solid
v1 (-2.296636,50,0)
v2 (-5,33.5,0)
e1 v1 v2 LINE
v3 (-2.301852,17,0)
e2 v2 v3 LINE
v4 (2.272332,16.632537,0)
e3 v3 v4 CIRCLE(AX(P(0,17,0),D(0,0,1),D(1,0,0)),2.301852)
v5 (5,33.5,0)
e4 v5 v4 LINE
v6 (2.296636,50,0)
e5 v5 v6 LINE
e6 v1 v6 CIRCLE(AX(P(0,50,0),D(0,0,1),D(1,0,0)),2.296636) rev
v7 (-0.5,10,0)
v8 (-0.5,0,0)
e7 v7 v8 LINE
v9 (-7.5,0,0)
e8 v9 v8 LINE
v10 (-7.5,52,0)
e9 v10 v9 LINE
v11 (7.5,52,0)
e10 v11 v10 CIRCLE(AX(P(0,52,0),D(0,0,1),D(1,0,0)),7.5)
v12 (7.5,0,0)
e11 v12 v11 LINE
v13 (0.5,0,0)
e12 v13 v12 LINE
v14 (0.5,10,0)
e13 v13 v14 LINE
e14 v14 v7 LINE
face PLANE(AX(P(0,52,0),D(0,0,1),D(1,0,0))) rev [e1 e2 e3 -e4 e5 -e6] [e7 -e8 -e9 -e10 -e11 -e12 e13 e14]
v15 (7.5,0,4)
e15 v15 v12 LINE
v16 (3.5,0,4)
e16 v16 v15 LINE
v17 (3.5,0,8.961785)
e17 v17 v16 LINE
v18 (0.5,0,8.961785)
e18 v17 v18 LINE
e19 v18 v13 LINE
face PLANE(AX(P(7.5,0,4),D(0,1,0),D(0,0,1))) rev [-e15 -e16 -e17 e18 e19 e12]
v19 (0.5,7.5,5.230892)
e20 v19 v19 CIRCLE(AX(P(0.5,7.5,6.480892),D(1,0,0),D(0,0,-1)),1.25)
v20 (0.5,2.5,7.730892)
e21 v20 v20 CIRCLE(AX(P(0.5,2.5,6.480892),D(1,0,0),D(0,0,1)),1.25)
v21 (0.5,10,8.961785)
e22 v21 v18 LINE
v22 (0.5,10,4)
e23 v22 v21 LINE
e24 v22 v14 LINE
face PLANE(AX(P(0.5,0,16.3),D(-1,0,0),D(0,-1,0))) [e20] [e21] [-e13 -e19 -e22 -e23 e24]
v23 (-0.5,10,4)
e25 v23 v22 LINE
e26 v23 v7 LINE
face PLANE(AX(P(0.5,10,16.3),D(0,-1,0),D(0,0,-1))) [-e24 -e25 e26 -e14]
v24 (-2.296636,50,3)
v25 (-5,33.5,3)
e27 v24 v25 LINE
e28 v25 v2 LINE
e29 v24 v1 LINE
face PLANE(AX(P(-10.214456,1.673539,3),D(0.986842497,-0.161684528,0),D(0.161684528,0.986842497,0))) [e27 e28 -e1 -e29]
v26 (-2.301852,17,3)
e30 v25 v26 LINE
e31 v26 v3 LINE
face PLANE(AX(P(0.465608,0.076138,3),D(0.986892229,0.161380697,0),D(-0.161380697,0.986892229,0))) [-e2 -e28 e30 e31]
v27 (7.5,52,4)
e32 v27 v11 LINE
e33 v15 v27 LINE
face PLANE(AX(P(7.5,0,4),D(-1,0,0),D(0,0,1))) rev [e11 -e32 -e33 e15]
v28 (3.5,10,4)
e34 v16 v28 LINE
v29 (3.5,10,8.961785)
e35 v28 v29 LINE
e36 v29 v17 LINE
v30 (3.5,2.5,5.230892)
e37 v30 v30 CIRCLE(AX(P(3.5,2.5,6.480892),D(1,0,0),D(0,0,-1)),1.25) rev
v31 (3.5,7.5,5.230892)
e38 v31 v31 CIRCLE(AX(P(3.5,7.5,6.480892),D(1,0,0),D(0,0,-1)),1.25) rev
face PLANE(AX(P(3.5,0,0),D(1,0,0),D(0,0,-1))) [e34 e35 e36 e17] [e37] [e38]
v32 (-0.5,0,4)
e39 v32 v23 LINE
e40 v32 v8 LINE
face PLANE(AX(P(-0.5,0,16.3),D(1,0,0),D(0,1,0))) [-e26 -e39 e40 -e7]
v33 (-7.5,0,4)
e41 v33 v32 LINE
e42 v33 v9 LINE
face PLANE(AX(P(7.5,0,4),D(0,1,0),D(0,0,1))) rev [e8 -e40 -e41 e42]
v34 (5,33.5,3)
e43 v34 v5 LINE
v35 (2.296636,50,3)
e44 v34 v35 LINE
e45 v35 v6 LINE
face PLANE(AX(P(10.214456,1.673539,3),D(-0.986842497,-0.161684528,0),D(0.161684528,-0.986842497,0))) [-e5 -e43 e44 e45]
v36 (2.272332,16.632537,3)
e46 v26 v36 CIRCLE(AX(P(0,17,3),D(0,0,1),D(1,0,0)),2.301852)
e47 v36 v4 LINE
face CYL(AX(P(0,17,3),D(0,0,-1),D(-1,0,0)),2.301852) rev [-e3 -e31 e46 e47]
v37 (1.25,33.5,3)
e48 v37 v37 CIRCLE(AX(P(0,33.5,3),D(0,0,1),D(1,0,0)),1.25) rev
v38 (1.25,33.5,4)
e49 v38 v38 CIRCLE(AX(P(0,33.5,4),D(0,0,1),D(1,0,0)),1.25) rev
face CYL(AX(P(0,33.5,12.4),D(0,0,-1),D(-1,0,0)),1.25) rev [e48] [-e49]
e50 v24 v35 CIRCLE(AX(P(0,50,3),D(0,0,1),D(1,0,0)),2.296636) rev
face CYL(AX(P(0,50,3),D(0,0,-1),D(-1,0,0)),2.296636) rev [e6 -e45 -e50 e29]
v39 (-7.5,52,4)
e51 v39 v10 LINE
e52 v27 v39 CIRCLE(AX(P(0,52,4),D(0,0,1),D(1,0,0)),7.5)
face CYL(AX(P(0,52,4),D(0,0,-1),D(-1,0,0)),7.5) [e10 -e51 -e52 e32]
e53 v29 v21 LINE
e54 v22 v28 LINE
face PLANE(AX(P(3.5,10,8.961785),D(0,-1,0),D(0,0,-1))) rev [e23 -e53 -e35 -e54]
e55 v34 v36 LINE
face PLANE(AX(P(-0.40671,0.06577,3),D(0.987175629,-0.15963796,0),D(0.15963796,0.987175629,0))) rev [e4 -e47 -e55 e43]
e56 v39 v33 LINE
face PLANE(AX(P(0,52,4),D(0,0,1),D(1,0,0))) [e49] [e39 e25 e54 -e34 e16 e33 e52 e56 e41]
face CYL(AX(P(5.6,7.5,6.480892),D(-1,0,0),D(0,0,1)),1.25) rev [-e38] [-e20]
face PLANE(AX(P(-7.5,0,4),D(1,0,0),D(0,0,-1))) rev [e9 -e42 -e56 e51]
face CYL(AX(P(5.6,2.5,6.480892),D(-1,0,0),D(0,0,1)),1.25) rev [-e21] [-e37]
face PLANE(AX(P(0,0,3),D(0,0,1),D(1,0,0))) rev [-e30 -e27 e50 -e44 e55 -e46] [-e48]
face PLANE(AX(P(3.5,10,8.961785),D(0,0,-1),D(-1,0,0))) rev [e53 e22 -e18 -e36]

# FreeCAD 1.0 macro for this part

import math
import FreeCAD as App
import Part
import Sketcher
from FreeCAD import Vector


def add_polygon(sketch, points):
    """Adds a closed chain of lines whose ends are joined by coincident constraints."""
    first, n = sketch.GeometryCount, len(points)
    for a, b in zip(points, points[1:] + points[:1]):
        sketch.addGeometry(Part.LineSegment(App.Vector(*a, 0), App.Vector(*b, 0)), False)
    for i in range(n):
        sketch.addConstraint(Sketcher.Constraint("Coincident", first + i, 2, first + (i + 1) % n, 1))

doc = App.newDocument("Part")
body = doc.addObject("PartDesign::Body", "Body")

sketch1 = body.newObject("Sketcher::SketchObject", "Sketch")
sketch1.AttachmentSupport = (doc.getObject("XY_Plane"), [""])
sketch1.MapMode = "FlatFace"
sketch1.addGeometry(Part.LineSegment(Vector(8, 0, 0), Vector(8, 52, 0)), False)
sketch1.addGeometry(Part.ArcOfCircle(Part.Circle(Vector(0, 52, 0), Vector(0, 0, 1), 8), math.radians(0), math.radians(180)), False)
sketch1.addGeometry(Part.LineSegment(Vector(-8, 52, 0), Vector(-8, 0, 0)), False)
sketch1.addGeometry(Part.LineSegment(Vector(-8, 0, 0), Vector(8, 0, 0)), False)
sketch1.addConstraint(Sketcher.Constraint("Tangent", 0, 2, 1, 1))
sketch1.addConstraint(Sketcher.Constraint("Tangent", 1, 2, 2, 1))
sketch1.addConstraint(Sketcher.Constraint("Coincident", 2, 2, 3, 1))
sketch1.addConstraint(Sketcher.Constraint("Coincident", 3, 2, 0, 1))
sketch1.addConstraint(Sketcher.Constraint("Vertical", 0))
sketch1.addConstraint(Sketcher.Constraint("Vertical", 2))
sketch1.addConstraint(Sketcher.Constraint("Horizontal", 3))
sketch1.addConstraint(Sketcher.Constraint("Symmetric", 2, 2, 3, 2, -1, 1))
sketch1.addConstraint(Sketcher.Constraint("Radius", 1, 7.5))
sketch1.addConstraint(Sketcher.Constraint("DistanceY", 0, 1, 0, 2, 52.0))
pad1 = body.newObject("PartDesign::Pad", "Pad")
pad1.Profile = sketch1
pad1.Length = 4

sketch2 = body.newObject("Sketcher::SketchObject", "Sketch001")
sketch2.AttachmentSupport = (doc.getObject("XY_Plane"), [""])
sketch2.MapMode = "FlatFace"
sketch2.addGeometry(Part.ArcOfCircle(Part.Circle(Vector(0, 50, 0), Vector(0, 0, 1), 2.3), math.radians(0), math.radians(180)), False)
sketch2.addGeometry(Part.LineSegment(Vector(-2.3, 50, 0), Vector(-5, 33.5, 0)), False)
sketch2.addGeometry(Part.LineSegment(Vector(-5, 33.5, 0), Vector(-2.3, 17, 0)), False)
sketch2.addGeometry(Part.ArcOfCircle(Part.Circle(Vector(0, 17, 0), Vector(0, 0, 1), 2.3), math.radians(180), math.radians(351)), False)
sketch2.addGeometry(Part.LineSegment(Vector(2.3, 16.6, 0), Vector(5, 33.5, 0)), False)
sketch2.addGeometry(Part.LineSegment(Vector(5, 33.5, 0), Vector(2.3, 50, 0)), False)
sketch2.addConstraint(Sketcher.Constraint("Coincident", 0, 2, 1, 1))
sketch2.addConstraint(Sketcher.Constraint("Coincident", 1, 2, 2, 1))
sketch2.addConstraint(Sketcher.Constraint("Coincident", 2, 2, 3, 1))
sketch2.addConstraint(Sketcher.Constraint("Tangent", 3, 2, 4, 1))
sketch2.addConstraint(Sketcher.Constraint("Coincident", 4, 2, 5, 1))
sketch2.addConstraint(Sketcher.Constraint("Coincident", 5, 2, 0, 1))
sketch2.addConstraint(Sketcher.Constraint("Symmetric", 1, 2, 4, 2, -2))
sketch2.addConstraint(Sketcher.Constraint("Symmetric", 0, 2, 5, 2, -2))
sketch2.addConstraint(Sketcher.Constraint("PointOnObject", 3, 3, -2))
sketch2.addConstraint(Sketcher.Constraint("Horizontal", 3, 3, 2, 2))
sketch2.addConstraint(Sketcher.Constraint("DistanceY", -1, 1, 0, 3, 50.0))
sketch2.addConstraint(Sketcher.Constraint("DistanceY", -1, 1, 3, 3, 17.0))
sketch2.addConstraint(Sketcher.Constraint("DistanceY", -1, 1, 0, 2, 50.0))
sketch2.addConstraint(Sketcher.Constraint("DistanceX", 1, 2, -1, 1, 5.0))
sketch2.addConstraint(Sketcher.Constraint("DistanceY", -1, 1, 1, 2, 33.5))
sketch2.addConstraint(Sketcher.Constraint("Radius", 3, 2.301852))
sketch2.addConstraint(Sketcher.Constraint("Radius", 0, 2.296636))
pocket1 = body.newObject("PartDesign::Pocket", "Pocket")
pocket1.Profile = sketch2
pocket1.Length = 3
pocket1.Reversed = True

sketch3 = body.newObject("Sketcher::SketchObject", "Sketch002")
sketch3.AttachmentSupport = (doc.getObject("XY_Plane"), [""])
sketch3.MapMode = "FlatFace"
sketch3.addGeometry(Part.Circle(Vector(0, 33.5, 0), Vector(0, 0, 1), 1.2), False)
sketch3.addConstraint(Sketcher.Constraint("PointOnObject", 0, 3, -2))
sketch3.addConstraint(Sketcher.Constraint("Diameter", 0, 2.5))
sketch3.addConstraint(Sketcher.Constraint("DistanceY", -1, 1, 0, 3, 33.5))
pocket2 = body.newObject("PartDesign::Pocket", "Pocket001")
pocket2.Profile = sketch3
pocket2.Length = 12.4
pocket2.Reversed = True

sketch4 = body.newObject("Sketcher::SketchObject", "Sketch003")
sketch4.AttachmentSupport = (doc.getObject("XY_Plane"), [""])
sketch4.MapMode = "FlatFace"
add_polygon(sketch4, [(-0.5, 10), (-0.5, 0), (0.5, 0), (0.5, 10)])
sketch4.addConstraint(Sketcher.Constraint("Vertical", 0))
sketch4.addConstraint(Sketcher.Constraint("Horizontal", 1))
sketch4.addConstraint(Sketcher.Constraint("Vertical", 2))
sketch4.addConstraint(Sketcher.Constraint("Horizontal", 3))
sketch4.addConstraint(Sketcher.Constraint("Symmetric", 0, 2, 1, 2, -1, 1))
sketch4.addConstraint(Sketcher.Constraint("DistanceX", 1, 1, 1, 2, 1.0))
sketch4.addConstraint(Sketcher.Constraint("DistanceY", 0, 2, 0, 1, 10.0))
pocket3 = body.newObject("PartDesign::Pocket", "Pocket002")
pocket3.Profile = sketch4
pocket3.Length = 16.3
pocket3.Reversed = True

sketch5 = body.newObject("Sketcher::SketchObject", "Sketch004")
sketch5.AttachmentSupport = (doc.getObject("YZ_Plane"), [""])
sketch5.MapMode = "FlatFace"
sketch5.AttachmentOffset = App.Placement(Vector(0, 0, 0.5), App.Rotation())
add_polygon(sketch5, [(10, 9), (0, 9), (0, 4), (10, 4)])
sketch5.addConstraint(Sketcher.Constraint("Horizontal", 0))
sketch5.addConstraint(Sketcher.Constraint("Vertical", 1))
sketch5.addConstraint(Sketcher.Constraint("Horizontal", 2))
sketch5.addConstraint(Sketcher.Constraint("Vertical", 3))
sketch5.addConstraint(Sketcher.Constraint("PointOnObject", 0, 2, -2))
sketch5.addConstraint(Sketcher.Constraint("DistanceX", 0, 2, 0, 1, 10.0))
sketch5.addConstraint(Sketcher.Constraint("DistanceY", 1, 2, 1, 1, 5.0))
sketch5.addConstraint(Sketcher.Constraint("DistanceY", -1, 1, 0, 2, 8.961785))
pad2 = body.newObject("PartDesign::Pad", "Pad001")
pad2.Profile = sketch5
pad2.Length = 3

sketch6 = body.newObject("Sketcher::SketchObject", "Sketch005")
sketch6.AttachmentSupport = (doc.getObject("YZ_Plane"), [""])
sketch6.MapMode = "FlatFace"
sketch6.AttachmentOffset = App.Placement(Vector(0, 0, 0.5), App.Rotation())
sketch6.addGeometry(Part.Circle(Vector(7.5, 6.5, 0), Vector(0, 0, 1), 1.2), False)
sketch6.addGeometry(Part.Circle(Vector(2.5, 6.5, 0), Vector(0, 0, 1), 1.2), False)
sketch6.addConstraint(Sketcher.Constraint("Equal", 0, 1))
sketch6.addConstraint(Sketcher.Constraint("Horizontal", 0, 3, 1, 3))
sketch6.addConstraint(Sketcher.Constraint("Diameter", 0, 2.5))
sketch6.addConstraint(Sketcher.Constraint("DistanceX", 1, 3, 0, 3, 5.0))
sketch6.addConstraint(Sketcher.Constraint("DistanceX", -1, 1, 0, 3, 7.5))
sketch6.addConstraint(Sketcher.Constraint("DistanceY", -1, 1, 0, 3, 6.480892))
pocket4 = body.newObject("PartDesign::Pocket", "Pocket003")
pocket4.Profile = sketch6
pocket4.Length = 5.1
pocket4.Reversed = True

doc.recompute()
